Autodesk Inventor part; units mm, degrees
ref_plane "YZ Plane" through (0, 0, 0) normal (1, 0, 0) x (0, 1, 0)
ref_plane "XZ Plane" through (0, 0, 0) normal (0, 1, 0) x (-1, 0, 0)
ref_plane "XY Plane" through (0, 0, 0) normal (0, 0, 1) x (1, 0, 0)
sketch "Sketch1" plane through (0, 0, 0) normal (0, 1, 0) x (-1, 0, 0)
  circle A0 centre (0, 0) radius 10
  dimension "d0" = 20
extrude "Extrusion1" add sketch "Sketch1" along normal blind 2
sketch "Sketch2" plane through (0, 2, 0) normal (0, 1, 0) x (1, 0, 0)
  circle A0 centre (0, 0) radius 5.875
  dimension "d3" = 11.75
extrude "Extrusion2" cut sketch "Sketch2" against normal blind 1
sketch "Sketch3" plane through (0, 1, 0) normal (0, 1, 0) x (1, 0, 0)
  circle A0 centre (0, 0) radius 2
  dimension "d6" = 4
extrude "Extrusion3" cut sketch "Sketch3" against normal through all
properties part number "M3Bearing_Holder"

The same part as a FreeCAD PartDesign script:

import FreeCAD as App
import Part
import Sketcher

V = App.Vector

doc = App.newDocument("Part")
body = doc.addObject("PartDesign::Body", "Body")

# Sketch on XZ plane
sketch1 = body.newObject("Sketcher::SketchObject", "Sketch")
sketch1.AttachmentSupport = (doc.getObject("XZ_Plane"), [""])
sketch1.MapMode = "FlatFace"
sketch1.addGeometry(Part.Circle(V(0, 0, 0), V(0, 0, 1), 10), False)
sketch1.addConstraint([
    Sketcher.Constraint("Coincident", 0, 3, -1, 1),
    Sketcher.Constraint("Diameter", 0, 20.0),
])
pad1 = body.newObject("PartDesign::Pad", "Pad")
pad1.Profile = sketch1
pad1.Length = 2
pad1.Reversed = True

# Sketch on XZ plane
sketch2 = body.newObject("Sketcher::SketchObject", "Sketch001")
sketch2.AttachmentSupport = (doc.getObject("XZ_Plane"), [""])
sketch2.MapMode = "FlatFace"
sketch2.AttachmentOffset = App.Placement(V(0, 0, -2), App.Rotation())
sketch2.addGeometry(Part.Circle(V(0, 0, 0), V(0, 0, 1), 5.875), False)
sketch2.addConstraint([
    Sketcher.Constraint("Coincident", 0, 3, -1, 1),
    Sketcher.Constraint("Diameter", 0, 11.75),
])
pocket1 = body.newObject("PartDesign::Pocket", "Pocket")
pocket1.Profile = sketch2
pocket1.Length = 1
pocket1.Reversed = True

# Sketch on XZ plane
sketch3 = body.newObject("Sketcher::SketchObject", "Sketch002")
sketch3.AttachmentSupport = (doc.getObject("XZ_Plane"), [""])
sketch3.MapMode = "FlatFace"
sketch3.AttachmentOffset = App.Placement(V(0, 0, -1), App.Rotation())
sketch3.addGeometry(Part.Circle(V(0, 0, 0), V(0, 0, 1), 2), False)
sketch3.addConstraint([
    Sketcher.Constraint("Coincident", 0, 3, -1, 1),
    Sketcher.Constraint("Diameter", 0, 4.0),
])
pocket2 = body.newObject("PartDesign::Pocket", "Pocket001")
pocket2.Profile = sketch3
pocket2.Type = "ThroughAll"
pocket2.Reversed = True

doc.recompute()
